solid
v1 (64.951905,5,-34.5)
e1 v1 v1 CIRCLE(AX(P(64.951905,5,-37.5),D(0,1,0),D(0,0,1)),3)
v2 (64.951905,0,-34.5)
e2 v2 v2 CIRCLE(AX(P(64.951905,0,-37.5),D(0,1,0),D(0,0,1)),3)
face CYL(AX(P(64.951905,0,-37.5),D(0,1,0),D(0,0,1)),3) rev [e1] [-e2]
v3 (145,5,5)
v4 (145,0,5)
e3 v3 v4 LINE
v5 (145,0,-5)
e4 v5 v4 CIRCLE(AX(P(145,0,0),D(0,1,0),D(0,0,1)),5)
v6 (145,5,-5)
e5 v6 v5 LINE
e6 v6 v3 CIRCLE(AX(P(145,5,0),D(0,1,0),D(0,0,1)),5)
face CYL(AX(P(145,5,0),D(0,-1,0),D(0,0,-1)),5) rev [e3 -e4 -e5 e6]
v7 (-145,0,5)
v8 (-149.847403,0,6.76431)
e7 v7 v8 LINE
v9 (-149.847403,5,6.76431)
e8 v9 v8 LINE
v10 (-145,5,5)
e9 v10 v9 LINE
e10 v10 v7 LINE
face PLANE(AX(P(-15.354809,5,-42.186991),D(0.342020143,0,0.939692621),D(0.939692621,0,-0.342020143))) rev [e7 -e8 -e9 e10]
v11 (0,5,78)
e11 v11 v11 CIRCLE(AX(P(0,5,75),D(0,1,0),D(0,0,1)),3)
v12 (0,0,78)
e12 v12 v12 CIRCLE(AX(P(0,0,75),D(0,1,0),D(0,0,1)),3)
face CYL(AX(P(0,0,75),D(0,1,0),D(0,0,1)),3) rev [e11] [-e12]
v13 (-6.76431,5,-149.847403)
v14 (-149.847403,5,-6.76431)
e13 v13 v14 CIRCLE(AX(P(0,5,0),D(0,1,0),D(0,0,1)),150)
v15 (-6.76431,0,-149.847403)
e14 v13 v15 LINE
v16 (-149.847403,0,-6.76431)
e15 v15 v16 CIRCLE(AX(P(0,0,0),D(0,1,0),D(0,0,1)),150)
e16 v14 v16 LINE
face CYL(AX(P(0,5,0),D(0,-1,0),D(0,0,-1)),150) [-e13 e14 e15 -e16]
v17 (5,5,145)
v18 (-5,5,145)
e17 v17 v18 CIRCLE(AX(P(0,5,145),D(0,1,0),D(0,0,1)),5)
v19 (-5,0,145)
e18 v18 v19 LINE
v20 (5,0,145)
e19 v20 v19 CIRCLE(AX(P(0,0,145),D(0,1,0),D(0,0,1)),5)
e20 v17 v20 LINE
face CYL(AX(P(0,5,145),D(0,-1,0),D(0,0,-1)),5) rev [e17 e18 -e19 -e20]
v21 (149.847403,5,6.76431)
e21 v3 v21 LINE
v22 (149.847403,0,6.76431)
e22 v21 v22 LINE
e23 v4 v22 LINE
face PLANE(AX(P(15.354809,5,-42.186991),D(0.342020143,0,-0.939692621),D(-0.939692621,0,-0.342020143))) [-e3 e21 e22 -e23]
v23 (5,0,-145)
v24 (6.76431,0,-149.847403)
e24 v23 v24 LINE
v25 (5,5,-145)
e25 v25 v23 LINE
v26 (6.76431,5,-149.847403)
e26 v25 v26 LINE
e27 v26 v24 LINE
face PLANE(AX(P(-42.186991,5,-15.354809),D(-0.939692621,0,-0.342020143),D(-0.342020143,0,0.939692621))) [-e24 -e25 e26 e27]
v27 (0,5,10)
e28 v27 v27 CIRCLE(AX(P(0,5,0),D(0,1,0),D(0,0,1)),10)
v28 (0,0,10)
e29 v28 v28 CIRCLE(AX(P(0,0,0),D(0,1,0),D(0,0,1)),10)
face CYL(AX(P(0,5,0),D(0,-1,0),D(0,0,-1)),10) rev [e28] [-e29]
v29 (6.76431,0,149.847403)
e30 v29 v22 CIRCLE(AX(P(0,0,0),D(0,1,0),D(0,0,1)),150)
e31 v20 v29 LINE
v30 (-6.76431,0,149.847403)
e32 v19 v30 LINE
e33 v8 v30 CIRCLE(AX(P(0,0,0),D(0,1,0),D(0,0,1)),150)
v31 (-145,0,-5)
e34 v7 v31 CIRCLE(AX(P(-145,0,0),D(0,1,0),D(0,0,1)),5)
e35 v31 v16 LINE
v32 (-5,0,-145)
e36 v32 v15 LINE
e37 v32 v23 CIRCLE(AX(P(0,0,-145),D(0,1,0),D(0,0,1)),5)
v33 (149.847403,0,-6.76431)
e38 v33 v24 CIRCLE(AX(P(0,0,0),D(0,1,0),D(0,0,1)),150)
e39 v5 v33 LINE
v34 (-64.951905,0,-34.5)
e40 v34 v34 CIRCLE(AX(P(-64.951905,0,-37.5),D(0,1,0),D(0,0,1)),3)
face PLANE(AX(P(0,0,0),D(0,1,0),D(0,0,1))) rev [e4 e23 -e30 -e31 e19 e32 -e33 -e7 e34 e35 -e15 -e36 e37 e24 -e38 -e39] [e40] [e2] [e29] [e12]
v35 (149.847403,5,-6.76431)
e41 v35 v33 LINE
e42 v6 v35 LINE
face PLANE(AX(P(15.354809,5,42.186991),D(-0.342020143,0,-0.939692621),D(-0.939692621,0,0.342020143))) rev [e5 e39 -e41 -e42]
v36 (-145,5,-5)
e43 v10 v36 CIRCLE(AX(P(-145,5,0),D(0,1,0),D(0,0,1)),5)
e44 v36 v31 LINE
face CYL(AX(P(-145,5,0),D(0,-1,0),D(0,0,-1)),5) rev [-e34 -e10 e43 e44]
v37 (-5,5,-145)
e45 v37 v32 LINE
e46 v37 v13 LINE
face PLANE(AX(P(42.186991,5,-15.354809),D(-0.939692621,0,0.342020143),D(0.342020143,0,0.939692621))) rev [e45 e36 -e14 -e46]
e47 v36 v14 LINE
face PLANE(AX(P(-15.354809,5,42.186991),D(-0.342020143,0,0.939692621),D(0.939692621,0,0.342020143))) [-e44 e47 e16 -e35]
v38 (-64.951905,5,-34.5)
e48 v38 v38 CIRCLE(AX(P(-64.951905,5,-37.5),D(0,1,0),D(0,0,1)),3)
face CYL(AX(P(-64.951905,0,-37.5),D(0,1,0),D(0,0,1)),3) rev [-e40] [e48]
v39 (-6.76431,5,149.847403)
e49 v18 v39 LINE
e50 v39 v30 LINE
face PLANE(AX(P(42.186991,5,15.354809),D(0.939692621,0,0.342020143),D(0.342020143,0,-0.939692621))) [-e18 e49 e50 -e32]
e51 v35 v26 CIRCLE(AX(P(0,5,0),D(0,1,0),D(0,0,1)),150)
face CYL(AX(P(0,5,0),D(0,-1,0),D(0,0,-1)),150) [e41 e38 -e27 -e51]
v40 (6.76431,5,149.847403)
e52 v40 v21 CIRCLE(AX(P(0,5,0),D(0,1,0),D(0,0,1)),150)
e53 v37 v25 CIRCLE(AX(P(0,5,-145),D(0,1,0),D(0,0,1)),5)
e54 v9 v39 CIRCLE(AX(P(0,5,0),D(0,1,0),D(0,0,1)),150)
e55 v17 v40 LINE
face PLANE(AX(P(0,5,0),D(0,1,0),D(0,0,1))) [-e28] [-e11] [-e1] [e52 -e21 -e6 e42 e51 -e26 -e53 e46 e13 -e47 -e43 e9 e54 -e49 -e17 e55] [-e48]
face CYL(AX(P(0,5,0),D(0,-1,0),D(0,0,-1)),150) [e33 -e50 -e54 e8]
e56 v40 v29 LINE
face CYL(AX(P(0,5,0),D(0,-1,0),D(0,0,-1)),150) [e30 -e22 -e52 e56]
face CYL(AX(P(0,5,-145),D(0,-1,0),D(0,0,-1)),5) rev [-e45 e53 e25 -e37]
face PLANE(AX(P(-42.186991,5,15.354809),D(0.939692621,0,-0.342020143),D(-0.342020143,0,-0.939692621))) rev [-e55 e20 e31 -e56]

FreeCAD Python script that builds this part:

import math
import FreeCAD as App
import Part
import Sketcher
from FreeCAD import Vector
Q = App.Units.Quantity

doc = App.newDocument("Part")
params = doc.addObject("Spreadsheet::Sheet", "Params")
for row, (alias, value) in enumerate([
    ("sketch1_diameter", "20 mm"),
    ("sketch1_radius", "5 mm"),
    ("sketch1_radius2", "150 mm"),
    ("pad1_length", "5 mm"),
    ("sketch2_diameter", "6 mm"),
], start=1):
    params.set(f"A{row}", alias)
    params.set(f"B{row}", "=" + value)
    params.setAlias(f"B{row}", alias)

body = doc.addObject("PartDesign::Body", "Body")

# Sketch on XZ plane
sketch1 = body.newObject("Sketcher::SketchObject", "Sketch")
sketch1.AttachmentSupport = (doc.getObject("XZ_Plane"), [""])
sketch1.MapMode = "FlatFace"
sketch1.addGeometry(Part.ArcOfCircle(Part.Circle(Vector(0, -145, 0), Vector(0, 0, 1), 5), math.radians(0), math.radians(180)), False)
sketch1.addGeometry(Part.LineSegment(Vector(-5, -145, 0), Vector(-7, -150, 0)), False)
sketch1.addGeometry(Part.ArcOfCircle(Part.Circle(Vector(0, 0, 0), Vector(0, 0, 1), 150), math.radians(-177), math.radians(-93)), False)
sketch1.addGeometry(Part.LineSegment(Vector(-150, -7, 0), Vector(-145, -5, 0)), False)
sketch1.addGeometry(Part.ArcOfCircle(Part.Circle(Vector(-145, 0, 0), Vector(0, 0, 1), 5), math.radians(-90), math.radians(0)), False)
sketch1.addGeometry(Part.ArcOfCircle(Part.Circle(Vector(-145, 0, 0), Vector(0, 0, 1), 5), math.radians(0), math.radians(90)), False)
sketch1.addGeometry(Part.LineSegment(Vector(-145, 5, 0), Vector(-150, 7, 0)), False)
sketch1.addGeometry(Part.ArcOfCircle(Part.Circle(Vector(0, 0, 0), Vector(0, 0, 1), 150), math.radians(93), math.radians(177)), False)
sketch1.addGeometry(Part.LineSegment(Vector(-7, 150, 0), Vector(-5, 145, 0)), False)
sketch1.addGeometry(Part.ArcOfCircle(Part.Circle(Vector(0, 145, 0), Vector(0, 0, 1), 5), math.radians(180), math.radians(360)), False)
sketch1.addGeometry(Part.LineSegment(Vector(5, 145, 0), Vector(7, 150, 0)), False)
sketch1.addGeometry(Part.ArcOfCircle(Part.Circle(Vector(0, 0, 0), Vector(0, 0, 1), 150), math.radians(3), math.radians(87)), False)
sketch1.addGeometry(Part.LineSegment(Vector(150, 7, 0), Vector(145, 5, 0)), False)
sketch1.addGeometry(Part.ArcOfCircle(Part.Circle(Vector(145, 0, 0), Vector(0, 0, 1), 5), math.radians(90), math.radians(270)), False)
sketch1.addGeometry(Part.LineSegment(Vector(145, -5, 0), Vector(150, -7, 0)), False)
sketch1.addGeometry(Part.ArcOfCircle(Part.Circle(Vector(0, 0, 0), Vector(0, 0, 1), 150), math.radians(-87), math.radians(-3)), False)
sketch1.addGeometry(Part.LineSegment(Vector(7, -150, 0), Vector(5, -145, 0)), False)
sketch1.addGeometry(Part.Circle(Vector(0, 0, 0), Vector(0, 0, 1), 10), False)
sketch1.addConstraint(Sketcher.Constraint("Coincident", 0, 2, 1, 1))
sketch1.addConstraint(Sketcher.Constraint("Coincident", 1, 2, 2, 2))
sketch1.addConstraint(Sketcher.Constraint("Coincident", 2, 1, 3, 1))
sketch1.addConstraint(Sketcher.Constraint("Coincident", 3, 2, 4, 1))
sketch1.addConstraint(Sketcher.Constraint("Tangent", 4, 2, 5, 1))
sketch1.addConstraint(Sketcher.Constraint("Coincident", 5, 2, 6, 1))
sketch1.addConstraint(Sketcher.Constraint("Coincident", 6, 2, 7, 2))
sketch1.addConstraint(Sketcher.Constraint("Coincident", 7, 1, 8, 1))
sketch1.addConstraint(Sketcher.Constraint("Coincident", 8, 2, 9, 1))
sketch1.addConstraint(Sketcher.Constraint("Coincident", 9, 2, 10, 1))
sketch1.addConstraint(Sketcher.Constraint("Coincident", 10, 2, 11, 2))
sketch1.addConstraint(Sketcher.Constraint("Coincident", 11, 1, 12, 1))
sketch1.addConstraint(Sketcher.Constraint("Coincident", 12, 2, 13, 1))
sketch1.addConstraint(Sketcher.Constraint("Coincident", 13, 2, 14, 1))
sketch1.addConstraint(Sketcher.Constraint("Coincident", 14, 2, 15, 2))
sketch1.addConstraint(Sketcher.Constraint("Coincident", 15, 1, 16, 1))
sketch1.addConstraint(Sketcher.Constraint("Coincident", 16, 2, 0, 1))
sketch1.addConstraint(Sketcher.Constraint("Coincident", 2, 3, -1, 1))
sketch1.addConstraint(Sketcher.Constraint("Coincident", 7, 3, -1, 1))
sketch1.addConstraint(Sketcher.Constraint("Coincident", 11, 3, -1, 1))
sketch1.addConstraint(Sketcher.Constraint("Coincident", 15, 3, -1, 1))
sketch1.addConstraint(Sketcher.Constraint("Coincident", 17, 3, -1, 1))
sketch1.addConstraint(Sketcher.Constraint("Equal", 0, 4))
sketch1.addConstraint(Sketcher.Constraint("Equal", 4, 5))
sketch1.addConstraint(Sketcher.Constraint("Equal", 2, 7))
sketch1.addConstraint(Sketcher.Constraint("Equal", 5, 9))
sketch1.addConstraint(Sketcher.Constraint("Equal", 7, 11))
sketch1.addConstraint(Sketcher.Constraint("Equal", 9, 13))
sketch1.addConstraint(Sketcher.Constraint("Equal", 11, 15))
sketch1.addConstraint(Sketcher.Constraint("Symmetric", 0, 3, 9, 3, -1, 1))
sketch1.addConstraint(Sketcher.Constraint("Symmetric", 4, 3, 13, 3, -1, 1))
sketch1.addConstraint(Sketcher.Constraint("Symmetric", 8, 2, 9, 2, -2))
sketch1.addConstraint(Sketcher.Constraint("Symmetric", 5, 2, 12, 2, -2))
sketch1.addConstraint(Sketcher.Constraint("PointOnObject", 4, 2, -1))
sketch1.addConstraint(Sketcher.Constraint("Perpendicular", 1, 6))
sketch1.addConstraint(Sketcher.Constraint("Perpendicular", 3, 8))
sketch1.addConstraint(Sketcher.Constraint("Perpendicular", 6, 10))
sketch1.addConstraint(Sketcher.Constraint("Perpendicular", 8, 12))
sketch1.addConstraint(Sketcher.Constraint("Perpendicular", 10, 14))
sketch1.addConstraint(Sketcher.Constraint("Perpendicular", 12, 16))
sketch1.addConstraint(Sketcher.Constraint("Horizontal", 9, 3, 8, 2))
sketch1.addConstraint(Sketcher.Constraint("Horizontal", 7, 1, 10, 2))
sketch1.addConstraint(Sketcher.Constraint("Horizontal", 2, 1, 14, 2))
sketch1.addConstraint(Sketcher.Constraint("Horizontal", 1, 2, 15, 1))
sketch1.addConstraint(Sketcher.Constraint("Vertical", 5, 3, 3, 2))
sketch1.addConstraint(Sketcher.Constraint("Vertical", 3, 2, 5, 2))
sketch1.addConstraint(Sketcher.Constraint("Equal", 1, 3))
sketch1.addConstraint(Sketcher.Constraint("Equal", 6, 8))
sketch1.addConstraint(Sketcher.Constraint("Diameter", 17, Q("20 mm")))
sketch1.addConstraint(Sketcher.Constraint("Radius", 0, Q("5 mm")))
sketch1.addConstraint(Sketcher.Constraint("Radius", 2, Q("150 mm")))
sketch1.addConstraint(Sketcher.Constraint("Angle", 1, Q("-110 deg")))
sketch1.addConstraint(Sketcher.Constraint("DistanceY", 0, 3, -1, 1, Q("145 mm")))
sketch1.setExpression("Constraints[48]", "Params.sketch1_diameter")
sketch1.setExpression("Constraints[49]", "Params.sketch1_radius")
sketch1.setExpression("Constraints[50]", "Params.sketch1_radius2")
pad1 = body.newObject("PartDesign::Pad", "Pad")
pad1.Profile = sketch1
pad1.setExpression("Length", "Params.pad1_length")
pad1.Reversed = True

# Sketch on XZ plane
sketch2 = body.newObject("Sketcher::SketchObject", "Sketch001")
sketch2.AttachmentSupport = (doc.getObject("XZ_Plane"), [""])
sketch2.MapMode = "FlatFace"
sketch2.AttachmentOffset = App.Placement(Vector(0, 0, -5), App.Rotation())
sketch2.addGeometry(Part.Circle(Vector(0, 75, 0), Vector(0, 0, 1), 3), False)
sketch2.addGeometry(Part.Circle(Vector(65, -37.5, 0), Vector(0, 0, 1), 3), False)
sketch2.addGeometry(Part.Circle(Vector(-65, -37.5, 0), Vector(0, 0, 1), 3), False)
sketch2.addConstraint(Sketcher.Constraint("Equal", 0, 1))
sketch2.addConstraint(Sketcher.Constraint("Equal", 1, 2))
sketch2.addConstraint(Sketcher.Constraint("Symmetric", 1, 3, 2, 3, -2))
sketch2.addConstraint(Sketcher.Constraint("PointOnObject", 0, 3, -2))
sketch2.addConstraint(Sketcher.Constraint("Diameter", 0, Q("6 mm")))
sketch2.addConstraint(Sketcher.Constraint("DistanceY", -1, 1, 0, 3, Q("75 mm")))
sketch2.addConstraint(Sketcher.Constraint("DistanceY", 1, 3, -1, 1, Q("37.5 mm")))
sketch2.addConstraint(Sketcher.Constraint("DistanceX", 2, 3, 1, 3, Q("129.903811 mm")))
sketch2.setExpression("Constraints[4]", "Params.sketch2_diameter")
pocket1 = body.newObject("PartDesign::Pocket", "Pocket")
pocket1.Profile = sketch2
pocket1.Type = "ThroughAll"
pocket1.Midplane = True

doc.recompute()
